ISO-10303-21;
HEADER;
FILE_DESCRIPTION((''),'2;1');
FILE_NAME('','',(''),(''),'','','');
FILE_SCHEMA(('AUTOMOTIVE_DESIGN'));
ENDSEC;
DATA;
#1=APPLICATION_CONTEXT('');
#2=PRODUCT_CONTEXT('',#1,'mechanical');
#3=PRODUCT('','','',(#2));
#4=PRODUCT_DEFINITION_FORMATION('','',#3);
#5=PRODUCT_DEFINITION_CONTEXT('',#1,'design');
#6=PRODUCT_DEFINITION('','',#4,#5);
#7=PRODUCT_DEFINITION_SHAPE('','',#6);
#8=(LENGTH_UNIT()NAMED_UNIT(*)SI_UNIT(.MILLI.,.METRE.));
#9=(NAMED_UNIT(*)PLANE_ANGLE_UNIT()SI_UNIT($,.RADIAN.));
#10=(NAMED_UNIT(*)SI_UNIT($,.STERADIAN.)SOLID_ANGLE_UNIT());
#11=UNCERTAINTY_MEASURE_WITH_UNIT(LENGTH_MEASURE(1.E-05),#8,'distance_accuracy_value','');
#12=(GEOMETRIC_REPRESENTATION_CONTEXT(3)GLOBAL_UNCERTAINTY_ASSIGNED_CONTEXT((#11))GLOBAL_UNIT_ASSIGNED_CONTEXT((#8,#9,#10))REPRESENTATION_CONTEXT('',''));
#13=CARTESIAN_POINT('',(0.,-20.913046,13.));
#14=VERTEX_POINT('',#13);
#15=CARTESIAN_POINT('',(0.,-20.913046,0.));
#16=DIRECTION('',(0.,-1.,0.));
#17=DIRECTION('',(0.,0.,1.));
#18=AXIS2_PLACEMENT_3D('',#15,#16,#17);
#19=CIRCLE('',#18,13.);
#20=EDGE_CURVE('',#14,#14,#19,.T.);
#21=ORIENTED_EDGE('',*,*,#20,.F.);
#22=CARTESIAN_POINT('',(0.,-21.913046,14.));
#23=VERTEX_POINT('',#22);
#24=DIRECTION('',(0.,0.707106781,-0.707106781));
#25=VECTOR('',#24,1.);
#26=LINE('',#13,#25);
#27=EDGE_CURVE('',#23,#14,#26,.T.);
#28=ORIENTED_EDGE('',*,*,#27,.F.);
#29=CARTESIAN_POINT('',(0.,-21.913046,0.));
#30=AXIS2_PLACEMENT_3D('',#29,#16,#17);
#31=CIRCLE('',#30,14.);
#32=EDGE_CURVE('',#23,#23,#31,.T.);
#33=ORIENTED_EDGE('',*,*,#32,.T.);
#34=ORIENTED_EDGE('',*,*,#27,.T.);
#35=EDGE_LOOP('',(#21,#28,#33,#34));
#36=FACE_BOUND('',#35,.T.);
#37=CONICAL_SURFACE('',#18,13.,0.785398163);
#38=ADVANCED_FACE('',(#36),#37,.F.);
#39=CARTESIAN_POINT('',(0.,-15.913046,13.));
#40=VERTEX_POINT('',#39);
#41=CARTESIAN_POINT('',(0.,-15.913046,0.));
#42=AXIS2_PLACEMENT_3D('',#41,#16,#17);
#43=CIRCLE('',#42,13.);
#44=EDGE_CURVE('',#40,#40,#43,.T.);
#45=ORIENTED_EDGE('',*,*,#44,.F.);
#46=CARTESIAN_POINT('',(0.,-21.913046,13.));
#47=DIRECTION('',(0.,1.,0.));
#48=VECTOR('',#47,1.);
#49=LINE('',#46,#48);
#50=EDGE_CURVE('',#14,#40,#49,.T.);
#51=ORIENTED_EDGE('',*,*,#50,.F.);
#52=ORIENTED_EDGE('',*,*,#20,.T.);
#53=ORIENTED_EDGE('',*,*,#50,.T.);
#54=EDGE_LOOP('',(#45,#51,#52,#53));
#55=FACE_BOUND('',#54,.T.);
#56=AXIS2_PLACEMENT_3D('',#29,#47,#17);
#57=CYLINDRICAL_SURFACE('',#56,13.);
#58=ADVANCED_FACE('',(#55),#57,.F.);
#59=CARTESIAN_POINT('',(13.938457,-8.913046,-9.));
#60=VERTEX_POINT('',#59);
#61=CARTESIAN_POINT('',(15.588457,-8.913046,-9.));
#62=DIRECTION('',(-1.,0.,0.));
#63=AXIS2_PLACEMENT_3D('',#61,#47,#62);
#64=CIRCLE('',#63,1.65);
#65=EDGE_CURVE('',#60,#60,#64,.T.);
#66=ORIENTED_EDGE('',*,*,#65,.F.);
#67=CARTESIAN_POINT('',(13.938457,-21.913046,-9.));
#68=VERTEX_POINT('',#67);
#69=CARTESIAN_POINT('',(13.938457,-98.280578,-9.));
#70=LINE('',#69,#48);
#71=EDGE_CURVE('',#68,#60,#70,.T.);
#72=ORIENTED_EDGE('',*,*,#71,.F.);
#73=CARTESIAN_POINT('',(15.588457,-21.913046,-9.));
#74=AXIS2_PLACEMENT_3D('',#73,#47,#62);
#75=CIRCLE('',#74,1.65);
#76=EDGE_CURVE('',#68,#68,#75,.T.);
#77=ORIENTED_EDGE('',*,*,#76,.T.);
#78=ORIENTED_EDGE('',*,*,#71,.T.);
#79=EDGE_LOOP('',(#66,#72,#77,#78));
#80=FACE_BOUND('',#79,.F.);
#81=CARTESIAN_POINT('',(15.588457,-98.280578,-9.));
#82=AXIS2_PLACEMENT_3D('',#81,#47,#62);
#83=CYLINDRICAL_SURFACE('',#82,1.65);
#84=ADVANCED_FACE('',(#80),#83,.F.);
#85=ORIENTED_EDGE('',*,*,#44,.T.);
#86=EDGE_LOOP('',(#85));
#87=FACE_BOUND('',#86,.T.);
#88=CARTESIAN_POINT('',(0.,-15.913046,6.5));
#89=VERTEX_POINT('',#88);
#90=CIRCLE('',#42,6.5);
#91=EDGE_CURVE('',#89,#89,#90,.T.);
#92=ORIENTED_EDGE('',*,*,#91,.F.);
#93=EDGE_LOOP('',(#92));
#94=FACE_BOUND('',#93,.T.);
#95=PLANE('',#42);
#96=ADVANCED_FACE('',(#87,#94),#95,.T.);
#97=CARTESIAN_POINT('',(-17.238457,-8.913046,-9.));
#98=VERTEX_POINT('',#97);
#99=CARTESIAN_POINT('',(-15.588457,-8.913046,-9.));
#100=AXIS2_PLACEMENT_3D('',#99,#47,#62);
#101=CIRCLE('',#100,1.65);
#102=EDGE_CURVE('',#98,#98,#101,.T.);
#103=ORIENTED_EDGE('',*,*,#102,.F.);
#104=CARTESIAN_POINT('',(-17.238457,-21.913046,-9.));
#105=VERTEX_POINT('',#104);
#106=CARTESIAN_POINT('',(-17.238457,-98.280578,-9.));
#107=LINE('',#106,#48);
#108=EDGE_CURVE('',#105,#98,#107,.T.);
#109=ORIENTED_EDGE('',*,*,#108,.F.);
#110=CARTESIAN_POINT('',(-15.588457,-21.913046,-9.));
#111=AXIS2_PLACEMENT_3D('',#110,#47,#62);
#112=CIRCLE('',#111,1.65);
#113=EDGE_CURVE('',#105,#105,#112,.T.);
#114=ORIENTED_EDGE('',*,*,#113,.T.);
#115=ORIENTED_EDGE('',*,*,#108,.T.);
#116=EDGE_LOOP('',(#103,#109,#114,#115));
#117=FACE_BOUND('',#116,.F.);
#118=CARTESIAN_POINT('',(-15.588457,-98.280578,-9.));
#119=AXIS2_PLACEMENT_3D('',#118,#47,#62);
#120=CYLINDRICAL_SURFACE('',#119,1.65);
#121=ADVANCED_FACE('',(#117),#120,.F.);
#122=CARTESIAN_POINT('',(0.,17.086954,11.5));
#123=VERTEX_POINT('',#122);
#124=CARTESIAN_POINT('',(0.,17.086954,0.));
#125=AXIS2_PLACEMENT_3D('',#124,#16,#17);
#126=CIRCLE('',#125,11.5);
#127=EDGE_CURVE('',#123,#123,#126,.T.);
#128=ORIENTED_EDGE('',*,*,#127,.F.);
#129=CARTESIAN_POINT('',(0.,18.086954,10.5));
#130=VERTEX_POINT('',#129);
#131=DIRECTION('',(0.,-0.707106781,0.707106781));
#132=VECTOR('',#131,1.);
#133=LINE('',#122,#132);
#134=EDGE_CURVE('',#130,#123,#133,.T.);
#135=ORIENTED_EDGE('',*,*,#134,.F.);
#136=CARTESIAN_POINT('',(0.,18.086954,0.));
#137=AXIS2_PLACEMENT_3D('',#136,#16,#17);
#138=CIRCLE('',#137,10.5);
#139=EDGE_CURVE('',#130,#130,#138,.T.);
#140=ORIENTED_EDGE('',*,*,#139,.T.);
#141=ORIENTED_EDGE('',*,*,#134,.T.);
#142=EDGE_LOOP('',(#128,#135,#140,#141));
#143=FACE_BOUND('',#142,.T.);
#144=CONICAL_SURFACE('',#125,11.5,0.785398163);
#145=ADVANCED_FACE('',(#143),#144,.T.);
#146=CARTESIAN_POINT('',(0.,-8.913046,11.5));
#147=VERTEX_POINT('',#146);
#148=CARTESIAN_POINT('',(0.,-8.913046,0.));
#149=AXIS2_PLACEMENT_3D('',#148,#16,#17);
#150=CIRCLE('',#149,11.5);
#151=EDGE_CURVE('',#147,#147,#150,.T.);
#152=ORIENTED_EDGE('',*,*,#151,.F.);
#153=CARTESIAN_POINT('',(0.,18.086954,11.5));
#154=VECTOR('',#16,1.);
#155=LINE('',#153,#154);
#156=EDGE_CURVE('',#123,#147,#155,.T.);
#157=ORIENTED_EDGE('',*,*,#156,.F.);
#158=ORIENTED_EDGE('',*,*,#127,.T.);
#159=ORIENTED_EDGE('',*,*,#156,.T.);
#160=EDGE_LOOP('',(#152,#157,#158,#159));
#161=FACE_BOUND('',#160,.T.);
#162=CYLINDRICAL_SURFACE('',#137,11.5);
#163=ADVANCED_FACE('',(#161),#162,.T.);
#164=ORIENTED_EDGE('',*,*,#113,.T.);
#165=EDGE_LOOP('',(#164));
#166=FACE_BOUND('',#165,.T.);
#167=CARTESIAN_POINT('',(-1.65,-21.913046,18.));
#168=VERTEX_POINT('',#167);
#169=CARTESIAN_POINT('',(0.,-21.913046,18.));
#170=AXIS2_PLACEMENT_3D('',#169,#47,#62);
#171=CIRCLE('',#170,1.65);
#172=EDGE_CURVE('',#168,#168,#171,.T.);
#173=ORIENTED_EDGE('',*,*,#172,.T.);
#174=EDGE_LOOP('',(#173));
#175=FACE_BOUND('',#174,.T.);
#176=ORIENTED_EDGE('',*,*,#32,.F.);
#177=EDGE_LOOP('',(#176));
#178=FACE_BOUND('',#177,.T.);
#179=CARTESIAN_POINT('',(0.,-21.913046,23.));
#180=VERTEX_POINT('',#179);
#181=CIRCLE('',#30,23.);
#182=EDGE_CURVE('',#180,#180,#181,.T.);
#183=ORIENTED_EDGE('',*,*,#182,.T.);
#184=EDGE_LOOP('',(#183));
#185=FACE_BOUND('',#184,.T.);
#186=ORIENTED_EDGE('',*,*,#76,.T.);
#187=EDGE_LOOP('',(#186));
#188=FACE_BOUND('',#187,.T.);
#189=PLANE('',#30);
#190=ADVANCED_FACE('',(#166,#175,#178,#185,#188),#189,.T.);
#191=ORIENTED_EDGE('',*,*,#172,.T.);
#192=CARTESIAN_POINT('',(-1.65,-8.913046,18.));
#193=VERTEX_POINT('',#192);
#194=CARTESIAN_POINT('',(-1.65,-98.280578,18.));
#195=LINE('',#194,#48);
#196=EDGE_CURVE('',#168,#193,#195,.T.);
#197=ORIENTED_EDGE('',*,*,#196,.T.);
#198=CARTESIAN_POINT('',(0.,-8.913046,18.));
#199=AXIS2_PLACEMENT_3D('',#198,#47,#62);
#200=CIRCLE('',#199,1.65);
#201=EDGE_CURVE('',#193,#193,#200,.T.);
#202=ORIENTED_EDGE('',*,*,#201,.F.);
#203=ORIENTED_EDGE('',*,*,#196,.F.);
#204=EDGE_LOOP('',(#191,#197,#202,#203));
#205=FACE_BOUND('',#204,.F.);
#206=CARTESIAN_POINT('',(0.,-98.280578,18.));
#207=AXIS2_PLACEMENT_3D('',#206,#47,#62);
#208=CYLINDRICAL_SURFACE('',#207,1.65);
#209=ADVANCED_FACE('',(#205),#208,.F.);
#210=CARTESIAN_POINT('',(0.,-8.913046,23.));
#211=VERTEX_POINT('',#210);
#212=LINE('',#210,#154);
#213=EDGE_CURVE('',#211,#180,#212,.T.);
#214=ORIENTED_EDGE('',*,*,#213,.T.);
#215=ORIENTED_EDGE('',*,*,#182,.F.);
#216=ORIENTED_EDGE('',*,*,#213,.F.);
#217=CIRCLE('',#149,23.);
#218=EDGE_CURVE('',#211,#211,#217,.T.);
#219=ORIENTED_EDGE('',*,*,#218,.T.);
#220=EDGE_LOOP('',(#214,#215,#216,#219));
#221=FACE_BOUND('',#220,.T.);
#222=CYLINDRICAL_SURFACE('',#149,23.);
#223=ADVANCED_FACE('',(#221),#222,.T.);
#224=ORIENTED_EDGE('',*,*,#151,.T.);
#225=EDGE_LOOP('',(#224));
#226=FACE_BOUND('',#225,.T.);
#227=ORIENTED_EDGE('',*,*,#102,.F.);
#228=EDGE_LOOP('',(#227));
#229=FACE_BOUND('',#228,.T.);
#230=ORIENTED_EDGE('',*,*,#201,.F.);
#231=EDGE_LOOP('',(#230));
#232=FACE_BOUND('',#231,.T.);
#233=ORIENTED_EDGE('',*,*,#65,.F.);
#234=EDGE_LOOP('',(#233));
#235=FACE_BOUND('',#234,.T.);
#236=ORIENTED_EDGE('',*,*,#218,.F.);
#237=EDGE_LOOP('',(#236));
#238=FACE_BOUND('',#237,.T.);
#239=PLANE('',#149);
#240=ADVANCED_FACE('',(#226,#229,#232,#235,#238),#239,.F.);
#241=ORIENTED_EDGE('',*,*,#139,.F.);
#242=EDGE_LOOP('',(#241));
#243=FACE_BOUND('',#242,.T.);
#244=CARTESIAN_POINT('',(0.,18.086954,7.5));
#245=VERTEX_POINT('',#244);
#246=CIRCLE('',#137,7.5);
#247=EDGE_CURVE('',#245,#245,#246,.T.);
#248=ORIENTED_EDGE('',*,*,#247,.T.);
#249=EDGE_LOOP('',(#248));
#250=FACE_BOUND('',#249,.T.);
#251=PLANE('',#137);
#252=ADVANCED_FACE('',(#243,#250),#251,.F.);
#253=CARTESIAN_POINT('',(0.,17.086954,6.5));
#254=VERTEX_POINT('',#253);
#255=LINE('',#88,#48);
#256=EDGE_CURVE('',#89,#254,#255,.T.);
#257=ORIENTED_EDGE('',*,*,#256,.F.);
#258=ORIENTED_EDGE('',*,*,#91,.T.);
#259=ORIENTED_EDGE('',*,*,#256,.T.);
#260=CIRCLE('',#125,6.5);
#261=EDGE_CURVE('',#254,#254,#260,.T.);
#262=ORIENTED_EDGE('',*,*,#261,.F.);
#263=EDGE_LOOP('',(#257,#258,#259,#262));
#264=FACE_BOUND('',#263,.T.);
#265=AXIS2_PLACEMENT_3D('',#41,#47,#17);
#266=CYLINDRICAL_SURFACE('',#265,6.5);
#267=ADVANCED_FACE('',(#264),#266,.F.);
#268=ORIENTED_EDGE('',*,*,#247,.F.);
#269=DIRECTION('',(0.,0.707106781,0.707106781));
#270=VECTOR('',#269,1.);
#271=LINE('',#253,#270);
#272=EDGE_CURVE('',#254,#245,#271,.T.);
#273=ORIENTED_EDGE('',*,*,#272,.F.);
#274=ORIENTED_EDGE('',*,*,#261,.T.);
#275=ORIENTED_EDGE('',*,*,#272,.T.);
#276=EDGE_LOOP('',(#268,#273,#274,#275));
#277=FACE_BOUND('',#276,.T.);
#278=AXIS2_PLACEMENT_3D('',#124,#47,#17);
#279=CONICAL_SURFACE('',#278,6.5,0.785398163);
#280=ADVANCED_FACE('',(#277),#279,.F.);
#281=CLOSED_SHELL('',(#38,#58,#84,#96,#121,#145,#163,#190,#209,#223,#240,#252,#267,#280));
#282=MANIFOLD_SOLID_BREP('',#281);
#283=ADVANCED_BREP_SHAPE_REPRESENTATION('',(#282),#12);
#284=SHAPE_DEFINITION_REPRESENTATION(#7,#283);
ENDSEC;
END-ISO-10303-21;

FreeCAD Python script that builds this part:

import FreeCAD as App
import Part
import Sketcher
from FreeCAD import Vector


def edges_at(feature, points):
    """Names of the edges that pass closest to the given points."""
    edges = feature.Shape.Edges
    near = lambda p: min(range(len(edges)), key=lambda i: edges[i].distToShape(Part.Vertex(*p))[0])
    return sorted({f"Edge{near(p) + 1}" for p in points})

doc = App.newDocument("Part")
body = doc.addObject("PartDesign::Body", "Body")

# Sketch on YZ plane
sketch1 = body.newObject("Sketcher::SketchObject", "Sketch")
sketch1.AttachmentSupport = (doc.getObject("YZ_Plane"), [""])
sketch1.MapMode = "FlatFace"
sketch1.addGeometry([
    Part.LineSegment(Vector(-15.913046, 6.5, 0), Vector(18.086954, 6.5, 0)),  # 0
    Part.LineSegment(Vector(18.086954, 6.5, 0), Vector(18.086954, 11.5, 0)),  # 1
    Part.LineSegment(Vector(18.086954, 11.5, 0), Vector(-8.913046, 11.5, 0)),  # 2
    Part.LineSegment(Vector(-8.913046, 11.5, 0), Vector(-8.913046, 23, 0)),  # 3
    Part.LineSegment(Vector(-8.913046, 23, 0), Vector(-21.913046, 23, 0)),  # 4
    Part.LineSegment(Vector(-21.913046, 23, 0), Vector(-21.913046, 13, 0)),  # 5
    Part.LineSegment(Vector(-21.913046, 13, 0), Vector(-15.913046, 13, 0)),  # 6
    Part.LineSegment(Vector(-15.913046, 13, 0), Vector(-15.913046, 6.5, 0)),  # 7
], False)
sketch1.addConstraint([
    Sketcher.Constraint("Coincident", 0, 2, 1, 1),
    Sketcher.Constraint("Coincident", 1, 2, 2, 1),
    Sketcher.Constraint("Coincident", 2, 2, 3, 1),
    Sketcher.Constraint("Coincident", 3, 2, 4, 1),
    Sketcher.Constraint("Coincident", 4, 2, 5, 1),
    Sketcher.Constraint("Coincident", 5, 2, 6, 1),
    Sketcher.Constraint("Coincident", 6, 2, 7, 1),
    Sketcher.Constraint("Coincident", 7, 2, 0, 1),
    Sketcher.Constraint("Horizontal", 0),
    Sketcher.Constraint("Vertical", 1),
    Sketcher.Constraint("Horizontal", 2),
    Sketcher.Constraint("Vertical", 3),
    Sketcher.Constraint("Horizontal", 4),
    Sketcher.Constraint("Vertical", 5),
    Sketcher.Constraint("Horizontal", 6),
    Sketcher.Constraint("Vertical", 7),
    Sketcher.Constraint("DistanceX", 0, 1, 0, 2, 34.0),
    Sketcher.Constraint("DistanceX", 2, 2, 2, 1, 27.0),
    Sketcher.Constraint("DistanceX", 4, 2, 4, 1, 13.0),
    Sketcher.Constraint("DistanceY", 1, 1, 1, 2, 5.0),
    Sketcher.Constraint("DistanceY", 5, 2, 5, 1, 10.0),
    Sketcher.Constraint("DistanceY", 3, 1, 3, 2, 11.5),
    Sketcher.Constraint("DistanceY", -1, 1, 3, 2, 23.0),
    Sketcher.Constraint("DistanceX", -1, 1, 0, 2, 18.086954),
])
revolution = body.newObject("PartDesign::Revolution", "Revolution")
revolution.Profile = sketch1
revolution.ReferenceAxis = (sketch1, ["H_Axis"])
revolution.Angle = 360
doc.recompute()

chamfer = body.newObject("PartDesign::Chamfer", "Chamfer")
chamfer.Base = (revolution, edges_at(revolution, [(0, 18.087, -11.5), (0, 18.087, -6.5), (0, -21.913, -13)]))
chamfer.Size = 1

# Sketch on XZ plane
sketch2 = body.newObject("Sketcher::SketchObject", "Sketch001")
sketch2.AttachmentSupport = (doc.getObject("XZ_Plane"), [""])
sketch2.MapMode = "FlatFace"
sketch2.AttachmentOffset = App.Placement(Vector(0, 0, 21.913046), App.Rotation())
sketch2.addGeometry([
    Part.Circle(Vector(0, 18, 0), Vector(0, 0, 1), 1.65),
    Part.Circle(Vector(-15.588457, -9, 0), Vector(0, 0, 1), 1.65),
    Part.Circle(Vector(15.588457, -9, 0), Vector(0, 0, 1), 1.65),
], False)
sketch2.addConstraint([
    Sketcher.Constraint("Equal", 0, 1),
    Sketcher.Constraint("Equal", 1, 2),
    Sketcher.Constraint("Symmetric", 1, 3, 2, 3, -2),
    Sketcher.Constraint("PointOnObject", 0, 3, -2),
    Sketcher.Constraint("Diameter", 0, 3.3),
    Sketcher.Constraint("DistanceY", -1, 1, 0, 3, 18.0),
    Sketcher.Constraint("DistanceY", 1, 3, -1, 1, 9.0),
    Sketcher.Constraint("DistanceX", 1, 3, -1, 1, 15.588457),
])
doc.recompute()
hole = body.newObject("PartDesign::Hole", "Hole")
hole.Profile = sketch2
hole.ThreadType = "None"
hole.Diameter = 3.3
hole.DepthType = "ThroughAll"

doc.recompute()
